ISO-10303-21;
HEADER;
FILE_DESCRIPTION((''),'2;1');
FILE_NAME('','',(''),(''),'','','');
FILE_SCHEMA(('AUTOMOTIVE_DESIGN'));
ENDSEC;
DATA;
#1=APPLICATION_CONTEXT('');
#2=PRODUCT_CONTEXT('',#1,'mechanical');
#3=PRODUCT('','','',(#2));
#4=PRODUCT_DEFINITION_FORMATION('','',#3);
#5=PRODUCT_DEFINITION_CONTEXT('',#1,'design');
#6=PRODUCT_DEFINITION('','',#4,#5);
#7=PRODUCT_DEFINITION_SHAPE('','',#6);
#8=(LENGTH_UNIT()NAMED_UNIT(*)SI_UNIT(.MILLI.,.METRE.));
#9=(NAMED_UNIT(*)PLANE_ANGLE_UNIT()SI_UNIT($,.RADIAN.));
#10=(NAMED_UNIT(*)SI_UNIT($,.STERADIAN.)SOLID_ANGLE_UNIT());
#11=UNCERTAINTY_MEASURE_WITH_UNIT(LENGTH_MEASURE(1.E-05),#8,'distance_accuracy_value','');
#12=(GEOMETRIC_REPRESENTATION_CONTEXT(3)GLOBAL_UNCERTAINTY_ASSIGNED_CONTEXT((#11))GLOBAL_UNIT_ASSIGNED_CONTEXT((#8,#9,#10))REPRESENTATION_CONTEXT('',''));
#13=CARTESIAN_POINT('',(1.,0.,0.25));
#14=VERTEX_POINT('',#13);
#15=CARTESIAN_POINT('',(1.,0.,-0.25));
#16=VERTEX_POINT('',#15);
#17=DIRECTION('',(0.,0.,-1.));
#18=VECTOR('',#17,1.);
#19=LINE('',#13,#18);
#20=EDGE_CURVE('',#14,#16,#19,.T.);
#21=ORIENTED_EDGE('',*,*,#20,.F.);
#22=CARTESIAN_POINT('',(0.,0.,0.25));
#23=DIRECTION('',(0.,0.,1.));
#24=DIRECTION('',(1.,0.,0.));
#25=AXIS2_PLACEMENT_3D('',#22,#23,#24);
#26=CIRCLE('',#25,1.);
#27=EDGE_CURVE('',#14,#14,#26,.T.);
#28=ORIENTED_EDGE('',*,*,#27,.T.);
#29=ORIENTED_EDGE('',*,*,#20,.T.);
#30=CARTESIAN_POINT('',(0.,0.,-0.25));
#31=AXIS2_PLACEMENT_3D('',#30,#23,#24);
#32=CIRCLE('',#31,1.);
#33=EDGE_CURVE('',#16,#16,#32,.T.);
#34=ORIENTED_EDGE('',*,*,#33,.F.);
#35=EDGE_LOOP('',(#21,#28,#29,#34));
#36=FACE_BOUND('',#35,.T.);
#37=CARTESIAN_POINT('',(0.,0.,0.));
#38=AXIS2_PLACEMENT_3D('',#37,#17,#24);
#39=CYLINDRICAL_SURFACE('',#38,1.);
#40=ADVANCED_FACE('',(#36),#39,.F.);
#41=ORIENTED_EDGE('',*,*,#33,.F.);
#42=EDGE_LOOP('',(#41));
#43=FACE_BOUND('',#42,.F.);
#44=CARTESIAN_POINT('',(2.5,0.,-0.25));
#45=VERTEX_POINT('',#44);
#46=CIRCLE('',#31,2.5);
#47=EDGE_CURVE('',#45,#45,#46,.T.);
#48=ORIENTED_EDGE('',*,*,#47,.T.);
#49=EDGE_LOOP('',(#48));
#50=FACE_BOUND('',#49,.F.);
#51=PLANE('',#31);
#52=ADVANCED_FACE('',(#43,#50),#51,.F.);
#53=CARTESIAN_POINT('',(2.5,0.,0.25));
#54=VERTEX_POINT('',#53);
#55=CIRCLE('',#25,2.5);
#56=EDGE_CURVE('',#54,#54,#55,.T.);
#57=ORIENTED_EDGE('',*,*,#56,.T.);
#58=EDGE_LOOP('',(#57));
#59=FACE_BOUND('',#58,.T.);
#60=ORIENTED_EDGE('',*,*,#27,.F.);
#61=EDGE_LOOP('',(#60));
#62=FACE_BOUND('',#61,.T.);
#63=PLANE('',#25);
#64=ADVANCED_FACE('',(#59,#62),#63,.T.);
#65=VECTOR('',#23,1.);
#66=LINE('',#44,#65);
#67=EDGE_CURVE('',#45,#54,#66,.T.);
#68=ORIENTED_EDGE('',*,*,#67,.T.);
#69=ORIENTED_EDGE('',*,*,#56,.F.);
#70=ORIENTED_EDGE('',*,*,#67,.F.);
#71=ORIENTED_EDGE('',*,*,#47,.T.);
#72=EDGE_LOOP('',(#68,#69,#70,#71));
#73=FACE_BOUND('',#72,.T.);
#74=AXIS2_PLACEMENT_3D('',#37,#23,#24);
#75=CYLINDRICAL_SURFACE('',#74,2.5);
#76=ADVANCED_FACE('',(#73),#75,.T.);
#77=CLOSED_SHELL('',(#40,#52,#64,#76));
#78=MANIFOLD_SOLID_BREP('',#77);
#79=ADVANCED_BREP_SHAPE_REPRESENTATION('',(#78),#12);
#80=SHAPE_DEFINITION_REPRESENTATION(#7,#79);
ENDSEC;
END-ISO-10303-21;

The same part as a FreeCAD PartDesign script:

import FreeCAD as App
import Part
import Sketcher

doc = App.newDocument("Part")
body = doc.addObject("PartDesign::Body", "Body")

# Sketch on XY plane
sketch1 = doc.addObject("Sketcher::SketchObject", "Sketch")
body.addObject(sketch1)
sketch1.AttachmentSupport = (doc.XY_Plane, [""])
sketch1.MapMode = "FlatFace"
sketch1.addGeometry(Part.Circle(App.Vector(0, 0, 0), App.Vector(0, 0, 1), 2.5), False)
sketch1.addGeometry(Part.Circle(App.Vector(0, 0, 0), App.Vector(0, 0, 1), 1), False)
sketch1.addConstraint(Sketcher.Constraint("Coincident", 0, 3, -1, 1))
sketch1.addConstraint(Sketcher.Constraint("Coincident", 1, 3, -1, 1))
sketch1.addConstraint(Sketcher.Constraint("Diameter", 0, 5.0))
sketch1.addConstraint(Sketcher.Constraint("Diameter", 1, 2.0))
pad1 = doc.addObject("PartDesign::Pad", "Pad")
body.addObject(pad1)
pad1.Profile = sketch1
pad1.Length = 0.5
pad1.Midplane = True

doc.recompute()
